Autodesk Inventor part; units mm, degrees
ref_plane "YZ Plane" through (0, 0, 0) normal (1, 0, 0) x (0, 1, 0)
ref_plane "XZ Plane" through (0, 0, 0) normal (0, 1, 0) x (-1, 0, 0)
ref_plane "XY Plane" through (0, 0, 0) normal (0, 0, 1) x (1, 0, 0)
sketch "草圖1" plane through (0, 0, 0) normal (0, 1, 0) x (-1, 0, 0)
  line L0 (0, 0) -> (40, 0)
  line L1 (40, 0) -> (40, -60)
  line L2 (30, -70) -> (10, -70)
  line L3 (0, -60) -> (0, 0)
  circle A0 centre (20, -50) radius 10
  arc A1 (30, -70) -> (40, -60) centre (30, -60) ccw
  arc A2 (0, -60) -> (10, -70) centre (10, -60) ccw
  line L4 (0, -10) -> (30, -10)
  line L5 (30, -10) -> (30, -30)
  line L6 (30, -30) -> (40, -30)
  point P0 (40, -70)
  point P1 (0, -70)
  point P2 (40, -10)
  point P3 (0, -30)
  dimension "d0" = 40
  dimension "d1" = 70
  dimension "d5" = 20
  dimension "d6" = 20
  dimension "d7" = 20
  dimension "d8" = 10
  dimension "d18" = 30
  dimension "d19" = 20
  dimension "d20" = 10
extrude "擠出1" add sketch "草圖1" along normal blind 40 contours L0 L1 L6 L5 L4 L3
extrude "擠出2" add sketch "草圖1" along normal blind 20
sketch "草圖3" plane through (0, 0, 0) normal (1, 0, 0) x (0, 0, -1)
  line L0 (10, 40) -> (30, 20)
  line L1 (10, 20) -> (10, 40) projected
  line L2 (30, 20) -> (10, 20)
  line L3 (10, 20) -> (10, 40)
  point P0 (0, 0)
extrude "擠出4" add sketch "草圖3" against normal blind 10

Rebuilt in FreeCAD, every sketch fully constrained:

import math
import FreeCAD as App
import Part
import Sketcher

V = App.Vector
Q = App.Units.Quantity

doc = App.newDocument("Part")
body = doc.addObject("PartDesign::Body", "Body")

# Sketch on XZ plane
sketch1 = doc.addObject("Sketcher::SketchObject", "Sketch")
body.addObject(sketch1)
sketch1.AttachmentSupport = (doc.XZ_Plane, [""])
sketch1.MapMode = "FlatFace"
sketch1.addGeometry([
    Part.LineSegment(V(-40, 0, 0), V(0, 0, 0)),  # 0
    Part.LineSegment(V(0, 0, 0), V(0, -10, 0)),  # 1
    Part.LineSegment(V(0, -10, 0), V(-30, -10, 0)),  # 2
    Part.LineSegment(V(-30, -10, 0), V(-30, -30, 0)),  # 3
    Part.LineSegment(V(-30, -30, 0), V(-40, -30, 0)),  # 4
    Part.LineSegment(V(-40, -30, 0), V(-40, 0, 0)),  # 5
], False)
sketch1.addConstraint([
    Sketcher.Constraint("Coincident", 0, 2, 1, 1),
    Sketcher.Constraint("Coincident", 1, 2, 2, 1),
    Sketcher.Constraint("Coincident", 2, 2, 3, 1),
    Sketcher.Constraint("Coincident", 3, 2, 4, 1),
    Sketcher.Constraint("Coincident", 4, 2, 5, 1),
    Sketcher.Constraint("Coincident", 5, 2, 0, 1),
    Sketcher.Constraint("Horizontal", 0),
    Sketcher.Constraint("Vertical", 1),
    Sketcher.Constraint("Horizontal", 2),
    Sketcher.Constraint("Vertical", 3),
    Sketcher.Constraint("Horizontal", 4),
    Sketcher.Constraint("Vertical", 5),
    Sketcher.Constraint("Coincident", 0, 2, -1, 1),
    Sketcher.Constraint("Equal", 4, 1),
    Sketcher.Constraint("Equal", 2, 5),
    Sketcher.Constraint("DistanceX", 0, 1, 0, 2, Q("40 mm")),
    Sketcher.Constraint("DistanceX", 2, 2, 2, 1, Q("30 mm")),
])
pad1 = doc.addObject("PartDesign::Pad", "Pad")
body.addObject(pad1)
pad1.Profile = sketch1
pad1.Length = 40
pad1.Reversed = True

# Sketch on XZ plane
sketch2 = doc.addObject("Sketcher::SketchObject", "Sketch001")
body.addObject(sketch2)
sketch2.AttachmentSupport = (doc.XZ_Plane, [""])
sketch2.MapMode = "FlatFace"
sketch2.addGeometry([
    Part.LineSegment(V(-40, 0, 0), V(0, 0, 0)),  # 0
    Part.LineSegment(V(0, 0, 0), V(0, -60, 0)),  # 1
    Part.ArcOfCircle(Part.Circle(V(-10, -60, 0), V(0, 0, 1), 10), math.radians(-90), math.radians(0)),  # 2
    Part.LineSegment(V(-10, -70, 0), V(-30, -70, 0)),  # 3
    Part.ArcOfCircle(Part.Circle(V(-30, -60, 0), V(0, 0, 1), 10), math.radians(180), math.radians(270)),  # 4
    Part.LineSegment(V(-40, -60, 0), V(-40, 0, 0)),  # 5
    Part.Circle(V(-20, -50, 0), V(0, 0, 1), 10),  # 6
], False)
sketch2.addConstraint([
    Sketcher.Constraint("Coincident", 0, 2, 1, 1),
    Sketcher.Constraint("Tangent", 1, 2, 2, 2),
    Sketcher.Constraint("Tangent", 2, 1, 3, 1),
    Sketcher.Constraint("Tangent", 3, 2, 4, 2),
    Sketcher.Constraint("Tangent", 4, 1, 5, 1),
    Sketcher.Constraint("Coincident", 5, 2, 0, 1),
    Sketcher.Constraint("Horizontal", 0),
    Sketcher.Constraint("Vertical", 1),
    Sketcher.Constraint("Horizontal", 3),
    Sketcher.Constraint("Vertical", 5),
    Sketcher.Constraint("Coincident", 0, 2, -1, 1),
    Sketcher.Constraint("Equal", 2, 4),
    Sketcher.Constraint("Equal", 4, 6),
    Sketcher.Constraint("Diameter", 6, Q("20 mm")),
    Sketcher.Constraint("DistanceX", 0, 1, 0, 2, Q("40 mm")),
    Sketcher.Constraint("DistanceX", 6, 3, -1, 1, Q("20 mm")),
    Sketcher.Constraint("DistanceY", 2, 1, -1, 1, Q("70 mm")),
    Sketcher.Constraint("DistanceY", 2, 3, 6, 3, Q("10 mm")),
])
pad2 = doc.addObject("PartDesign::Pad", "Pad001")
body.addObject(pad2)
pad2.Profile = sketch2
pad2.Length = 20
pad2.Reversed = True

# Sketch on YZ plane
sketch3 = doc.addObject("Sketcher::SketchObject", "Sketch002")
body.addObject(sketch3)
sketch3.AttachmentSupport = (doc.YZ_Plane, [""])
sketch3.MapMode = "FlatFace"
sketch3.addGeometry([
    Part.LineSegment(V(20, -30, 0), V(40, -10, 0)),
    Part.LineSegment(V(40, -10, 0), V(20, -10, 0)),
    Part.LineSegment(V(20, -10, 0), V(20, -30, 0)),
], False)
sketch3.addConstraint([
    Sketcher.Constraint("Coincident", 0, 2, 1, 1),
    Sketcher.Constraint("Coincident", 1, 2, 2, 1),
    Sketcher.Constraint("Coincident", 2, 2, 0, 1),
    Sketcher.Constraint("Horizontal", 1),
    Sketcher.Constraint("Vertical", 2),
    Sketcher.Constraint("Equal", 1, 2),
    Sketcher.Constraint("DistanceX", 1, 2, 1, 1, Q("20 mm")),
    Sketcher.Constraint("DistanceX", -1, 1, 0, 2, Q("40 mm")),
    Sketcher.Constraint("DistanceY", 0, 2, -1, 1, Q("10 mm")),
])
pad3 = doc.addObject("PartDesign::Pad", "Pad002")
body.addObject(pad3)
pad3.Profile = sketch3
pad3.Length = 10
pad3.Reversed = True

doc.recompute()
